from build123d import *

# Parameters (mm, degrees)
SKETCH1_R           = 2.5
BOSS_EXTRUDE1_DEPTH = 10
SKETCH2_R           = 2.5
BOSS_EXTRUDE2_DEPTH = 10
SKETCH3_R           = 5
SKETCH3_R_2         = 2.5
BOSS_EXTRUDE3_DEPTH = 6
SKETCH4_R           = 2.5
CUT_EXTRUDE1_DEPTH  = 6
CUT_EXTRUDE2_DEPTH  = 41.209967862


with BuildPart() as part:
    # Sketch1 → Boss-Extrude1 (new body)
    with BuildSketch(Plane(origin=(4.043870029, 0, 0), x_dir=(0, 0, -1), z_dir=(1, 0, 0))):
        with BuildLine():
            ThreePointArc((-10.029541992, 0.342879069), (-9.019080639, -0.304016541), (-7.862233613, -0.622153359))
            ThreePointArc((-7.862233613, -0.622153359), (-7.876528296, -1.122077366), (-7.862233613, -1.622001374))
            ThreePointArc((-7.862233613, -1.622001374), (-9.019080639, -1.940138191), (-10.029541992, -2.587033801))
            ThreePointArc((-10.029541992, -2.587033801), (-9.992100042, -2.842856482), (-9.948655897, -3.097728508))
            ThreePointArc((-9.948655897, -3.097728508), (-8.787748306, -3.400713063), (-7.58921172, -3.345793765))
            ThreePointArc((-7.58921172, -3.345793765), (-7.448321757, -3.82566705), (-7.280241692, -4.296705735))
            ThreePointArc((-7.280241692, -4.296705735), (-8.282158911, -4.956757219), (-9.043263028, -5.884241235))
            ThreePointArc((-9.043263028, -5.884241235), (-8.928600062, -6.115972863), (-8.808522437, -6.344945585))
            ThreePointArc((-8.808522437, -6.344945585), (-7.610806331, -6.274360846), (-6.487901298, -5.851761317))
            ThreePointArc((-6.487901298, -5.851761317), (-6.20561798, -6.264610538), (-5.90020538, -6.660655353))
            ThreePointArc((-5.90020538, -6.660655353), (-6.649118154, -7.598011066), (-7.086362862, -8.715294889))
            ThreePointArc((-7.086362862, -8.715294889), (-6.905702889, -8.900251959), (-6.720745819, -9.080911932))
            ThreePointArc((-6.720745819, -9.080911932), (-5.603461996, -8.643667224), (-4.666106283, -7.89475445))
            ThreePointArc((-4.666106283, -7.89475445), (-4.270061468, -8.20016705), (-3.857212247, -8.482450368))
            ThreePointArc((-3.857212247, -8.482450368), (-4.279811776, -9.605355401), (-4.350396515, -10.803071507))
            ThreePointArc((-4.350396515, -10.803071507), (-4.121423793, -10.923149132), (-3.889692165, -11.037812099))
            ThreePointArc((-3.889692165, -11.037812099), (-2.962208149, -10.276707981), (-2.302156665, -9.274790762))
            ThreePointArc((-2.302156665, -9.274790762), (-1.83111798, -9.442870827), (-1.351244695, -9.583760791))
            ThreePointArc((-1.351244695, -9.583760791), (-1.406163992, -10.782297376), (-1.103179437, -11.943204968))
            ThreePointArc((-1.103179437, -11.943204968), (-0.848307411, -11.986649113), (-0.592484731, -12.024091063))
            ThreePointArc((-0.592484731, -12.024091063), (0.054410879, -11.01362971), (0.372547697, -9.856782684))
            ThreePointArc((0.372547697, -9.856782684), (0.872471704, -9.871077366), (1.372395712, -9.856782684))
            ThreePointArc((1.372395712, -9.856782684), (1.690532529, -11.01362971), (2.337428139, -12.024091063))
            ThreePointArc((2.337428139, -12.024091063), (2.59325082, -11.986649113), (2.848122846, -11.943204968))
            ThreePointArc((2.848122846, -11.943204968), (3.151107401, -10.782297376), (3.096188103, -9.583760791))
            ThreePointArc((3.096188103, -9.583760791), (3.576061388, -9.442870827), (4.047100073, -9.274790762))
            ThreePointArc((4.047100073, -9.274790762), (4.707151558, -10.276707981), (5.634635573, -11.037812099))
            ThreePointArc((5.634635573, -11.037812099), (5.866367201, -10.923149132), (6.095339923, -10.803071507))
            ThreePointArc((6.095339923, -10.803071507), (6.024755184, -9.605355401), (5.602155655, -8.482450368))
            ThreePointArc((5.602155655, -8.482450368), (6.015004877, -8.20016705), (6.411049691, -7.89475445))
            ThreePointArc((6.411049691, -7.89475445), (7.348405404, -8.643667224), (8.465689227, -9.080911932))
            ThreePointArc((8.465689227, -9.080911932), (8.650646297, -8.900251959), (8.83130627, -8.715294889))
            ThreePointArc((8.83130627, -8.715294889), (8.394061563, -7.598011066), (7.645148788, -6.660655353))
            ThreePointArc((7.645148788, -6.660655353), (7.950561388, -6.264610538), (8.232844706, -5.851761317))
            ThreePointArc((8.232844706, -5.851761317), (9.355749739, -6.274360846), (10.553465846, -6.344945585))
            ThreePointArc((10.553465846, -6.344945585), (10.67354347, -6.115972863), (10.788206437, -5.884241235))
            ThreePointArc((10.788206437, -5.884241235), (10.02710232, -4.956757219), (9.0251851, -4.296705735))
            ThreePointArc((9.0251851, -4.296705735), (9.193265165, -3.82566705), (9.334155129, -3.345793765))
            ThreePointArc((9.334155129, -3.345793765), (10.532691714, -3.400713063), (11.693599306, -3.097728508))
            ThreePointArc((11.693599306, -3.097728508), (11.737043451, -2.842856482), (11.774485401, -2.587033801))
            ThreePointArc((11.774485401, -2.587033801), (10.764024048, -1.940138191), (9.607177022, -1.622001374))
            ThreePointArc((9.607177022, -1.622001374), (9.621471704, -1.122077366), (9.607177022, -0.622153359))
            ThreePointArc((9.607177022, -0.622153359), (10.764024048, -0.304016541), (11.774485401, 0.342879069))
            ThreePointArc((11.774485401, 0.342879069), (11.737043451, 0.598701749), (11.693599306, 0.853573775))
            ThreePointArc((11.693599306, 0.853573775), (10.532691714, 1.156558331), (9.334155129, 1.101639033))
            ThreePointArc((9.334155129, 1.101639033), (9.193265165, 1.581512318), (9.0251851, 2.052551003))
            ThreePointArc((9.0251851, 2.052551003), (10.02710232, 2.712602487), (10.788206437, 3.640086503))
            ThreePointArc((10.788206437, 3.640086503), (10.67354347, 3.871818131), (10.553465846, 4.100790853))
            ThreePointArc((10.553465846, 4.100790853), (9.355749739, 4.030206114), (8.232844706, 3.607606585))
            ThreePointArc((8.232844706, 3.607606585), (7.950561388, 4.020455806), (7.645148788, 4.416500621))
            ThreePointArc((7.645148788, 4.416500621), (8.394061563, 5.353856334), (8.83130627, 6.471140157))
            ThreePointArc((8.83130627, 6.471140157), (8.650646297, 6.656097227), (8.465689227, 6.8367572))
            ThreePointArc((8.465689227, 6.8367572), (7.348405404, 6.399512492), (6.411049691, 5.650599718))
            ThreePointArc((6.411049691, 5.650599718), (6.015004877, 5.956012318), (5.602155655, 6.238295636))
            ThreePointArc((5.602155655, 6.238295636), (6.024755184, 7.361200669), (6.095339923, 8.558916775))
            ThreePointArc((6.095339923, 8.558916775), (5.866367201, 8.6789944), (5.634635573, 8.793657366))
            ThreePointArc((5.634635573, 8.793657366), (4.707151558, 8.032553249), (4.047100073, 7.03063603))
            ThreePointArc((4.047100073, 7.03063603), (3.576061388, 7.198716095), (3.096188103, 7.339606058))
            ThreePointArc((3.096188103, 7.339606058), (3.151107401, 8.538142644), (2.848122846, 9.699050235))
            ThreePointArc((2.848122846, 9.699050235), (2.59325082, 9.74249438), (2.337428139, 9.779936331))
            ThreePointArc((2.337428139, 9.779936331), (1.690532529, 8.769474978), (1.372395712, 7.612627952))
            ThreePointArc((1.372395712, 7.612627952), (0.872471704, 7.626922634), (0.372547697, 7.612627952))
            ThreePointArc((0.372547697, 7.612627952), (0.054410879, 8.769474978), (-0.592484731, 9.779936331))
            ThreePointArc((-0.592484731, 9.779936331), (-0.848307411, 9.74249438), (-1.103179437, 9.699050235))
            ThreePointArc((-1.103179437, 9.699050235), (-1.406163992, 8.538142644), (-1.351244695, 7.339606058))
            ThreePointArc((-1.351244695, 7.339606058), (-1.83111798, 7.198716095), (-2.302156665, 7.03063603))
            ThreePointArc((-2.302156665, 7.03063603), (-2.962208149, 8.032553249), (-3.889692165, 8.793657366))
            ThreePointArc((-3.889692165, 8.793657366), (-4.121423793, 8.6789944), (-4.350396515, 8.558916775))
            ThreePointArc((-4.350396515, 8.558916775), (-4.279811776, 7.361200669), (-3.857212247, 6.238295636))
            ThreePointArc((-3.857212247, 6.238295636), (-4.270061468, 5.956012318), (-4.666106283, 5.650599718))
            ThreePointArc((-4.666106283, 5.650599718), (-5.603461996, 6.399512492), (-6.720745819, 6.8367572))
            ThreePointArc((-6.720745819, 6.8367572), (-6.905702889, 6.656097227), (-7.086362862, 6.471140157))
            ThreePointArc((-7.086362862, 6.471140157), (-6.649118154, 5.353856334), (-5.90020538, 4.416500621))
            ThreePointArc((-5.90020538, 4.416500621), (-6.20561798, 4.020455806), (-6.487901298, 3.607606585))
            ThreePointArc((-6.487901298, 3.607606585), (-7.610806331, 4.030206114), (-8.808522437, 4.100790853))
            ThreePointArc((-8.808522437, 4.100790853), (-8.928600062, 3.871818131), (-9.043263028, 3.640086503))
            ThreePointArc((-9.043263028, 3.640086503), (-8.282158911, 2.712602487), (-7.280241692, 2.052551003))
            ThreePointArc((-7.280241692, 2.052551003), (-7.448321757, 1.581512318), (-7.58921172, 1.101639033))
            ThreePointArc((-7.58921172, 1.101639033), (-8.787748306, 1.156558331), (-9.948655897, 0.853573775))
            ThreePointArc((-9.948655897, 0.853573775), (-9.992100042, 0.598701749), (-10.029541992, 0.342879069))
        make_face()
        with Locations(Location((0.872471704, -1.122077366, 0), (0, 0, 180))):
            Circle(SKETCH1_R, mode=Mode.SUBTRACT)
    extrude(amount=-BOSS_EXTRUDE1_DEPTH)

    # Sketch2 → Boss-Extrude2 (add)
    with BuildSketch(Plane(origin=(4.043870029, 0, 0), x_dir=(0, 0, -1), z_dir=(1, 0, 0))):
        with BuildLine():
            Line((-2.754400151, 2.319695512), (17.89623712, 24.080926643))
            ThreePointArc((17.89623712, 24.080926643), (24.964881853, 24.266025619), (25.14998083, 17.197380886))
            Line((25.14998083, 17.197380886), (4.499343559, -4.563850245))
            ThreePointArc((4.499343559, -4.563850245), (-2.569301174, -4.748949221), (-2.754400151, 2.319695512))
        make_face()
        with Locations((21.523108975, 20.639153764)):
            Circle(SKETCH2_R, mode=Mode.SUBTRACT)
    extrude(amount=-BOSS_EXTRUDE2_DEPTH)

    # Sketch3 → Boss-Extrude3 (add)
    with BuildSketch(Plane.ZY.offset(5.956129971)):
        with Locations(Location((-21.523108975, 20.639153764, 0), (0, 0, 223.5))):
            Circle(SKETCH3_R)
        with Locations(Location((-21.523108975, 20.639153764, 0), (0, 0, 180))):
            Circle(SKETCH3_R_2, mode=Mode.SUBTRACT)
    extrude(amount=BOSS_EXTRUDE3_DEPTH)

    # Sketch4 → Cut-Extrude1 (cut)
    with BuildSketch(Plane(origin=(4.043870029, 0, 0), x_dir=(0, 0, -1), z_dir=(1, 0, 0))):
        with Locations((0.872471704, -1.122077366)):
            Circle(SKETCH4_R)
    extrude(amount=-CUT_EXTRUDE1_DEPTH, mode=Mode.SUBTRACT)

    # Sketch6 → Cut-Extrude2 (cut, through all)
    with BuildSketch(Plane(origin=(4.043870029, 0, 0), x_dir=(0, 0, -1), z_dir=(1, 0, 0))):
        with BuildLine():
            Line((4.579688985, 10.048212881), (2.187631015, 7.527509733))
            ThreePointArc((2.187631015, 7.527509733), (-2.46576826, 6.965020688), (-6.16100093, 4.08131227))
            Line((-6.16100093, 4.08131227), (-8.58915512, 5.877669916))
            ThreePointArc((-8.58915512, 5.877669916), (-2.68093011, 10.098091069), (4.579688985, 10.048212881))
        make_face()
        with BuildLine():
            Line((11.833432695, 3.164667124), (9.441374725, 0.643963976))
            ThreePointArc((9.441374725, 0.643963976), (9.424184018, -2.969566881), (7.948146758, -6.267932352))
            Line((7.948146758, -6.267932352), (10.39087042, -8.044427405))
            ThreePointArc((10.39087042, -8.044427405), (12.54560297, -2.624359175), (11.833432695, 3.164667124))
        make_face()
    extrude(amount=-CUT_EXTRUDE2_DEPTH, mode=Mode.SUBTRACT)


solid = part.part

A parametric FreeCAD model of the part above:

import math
import FreeCAD as App
import Part
import Sketcher

V = App.Vector
Q = App.Units.Quantity

doc = App.newDocument("Part")
body = doc.addObject("PartDesign::Body", "Body")

# Sketch on YZ plane
sketch1 = body.newObject("Sketcher::SketchObject", "Sketch")
sketch1.AttachmentSupport = (doc.getObject("YZ_Plane"), [""])
sketch1.MapMode = "FlatFace"
sketch1.AttachmentOffset = App.Placement(V(0, 0, 4.04387), App.Rotation())
sketch1.addGeometry([
    Part.ArcOfCircle(Part.Circle(V(3.4, 7.4, 0), V(0, 0, 1), 4), math.radians(139), math.radians(173)),  # 0
    Part.ArcOfCircle(Part.Circle(V(-1.1, -0.9, 0), V(0, 0, 1), 8.7), math.radians(86.72), math.radians(93.28)),  # 1
    Part.ArcOfCircle(Part.Circle(V(-5.6, 7.4, 0), V(0, 0, 1), 4), math.radians(7), math.radians(41)),  # 2
    Part.ArcOfCircle(Part.Circle(V(-1.1, -0.9, 0), V(0, 0, 1), 11), math.radians(97.65), math.radians(100.35)),  # 3
    Part.ArcOfCircle(Part.Circle(V(0.6, 8.4, 0), V(0, 0, 1), 4), math.radians(157), math.radians(191)),  # 4
    Part.ArcOfCircle(Part.Circle(V(-1.1, -0.9, 0), V(0, 0, 1), 8.7), math.radians(104.72), math.radians(111.28)),  # 5
    Part.ArcOfCircle(Part.Circle(V(-7.9, 5.6, 0), V(0, 0, 1), 4), math.radians(25), math.radians(59)),  # 6
    Part.ArcOfCircle(Part.Circle(V(-1.1, -0.9, 0), V(0, 0, 1), 11), math.radians(115.65), math.radians(118.35)),  # 7
    Part.ArcOfCircle(Part.Circle(V(-2.4, 8.4, 0), V(0, 0, 1), 4), math.radians(175), math.radians(209)),  # 8
    Part.ArcOfCircle(Part.Circle(V(-1.1, -0.9, 0), V(0, 0, 1), 8.7), math.radians(122.72), math.radians(129.28)),  # 9
    Part.ArcOfCircle(Part.Circle(V(-9.6, 3.2, 0), V(0, 0, 1), 4), math.radians(43), math.radians(77)),  # 10
    Part.ArcOfCircle(Part.Circle(V(-1.1, -0.9, 0), V(0, 0, 1), 11), math.radians(133.65), math.radians(136.35)),  # 11
    Part.ArcOfCircle(Part.Circle(V(-5.2, 7.6, 0), V(0, 0, 1), 4), math.radians(-167), math.radians(-133)),  # 12
    Part.ArcOfCircle(Part.Circle(V(-1.1, -0.9, 0), V(0, 0, 1), 8.7), math.radians(140.72), math.radians(147.28)),  # 13
    Part.ArcOfCircle(Part.Circle(V(-10.4, 0.4, 0), V(0, 0, 1), 4), math.radians(61), math.radians(95)),  # 14
    Part.ArcOfCircle(Part.Circle(V(-1.1, -0.9, 0), V(0, 0, 1), 11), math.radians(151.65), math.radians(154.35)),  # 15
    Part.ArcOfCircle(Part.Circle(V(-7.6, 5.9, 0), V(0, 0, 1), 4), math.radians(-149), math.radians(-115)),  # 16
    Part.ArcOfCircle(Part.Circle(V(-1.1, -0.9, 0), V(0, 0, 1), 8.7), math.radians(158.72), math.radians(165.28)),  # 17
    Part.ArcOfCircle(Part.Circle(V(-10.4, -2.6, 0), V(0, 0, 1), 4), math.radians(79), math.radians(113)),  # 18
    Part.ArcOfCircle(Part.Circle(V(-1.1, -0.9, 0), V(0, 0, 1), 11), math.radians(169.65), math.radians(172.35)),  # 19
    Part.ArcOfCircle(Part.Circle(V(-9.4, 3.6, 0), V(0, 0, 1), 4), math.radians(-131), math.radians(-97)),  # 20
    Part.ArcOfCircle(Part.Circle(V(-1.1, -0.9, 0), V(0, 0, 1), 8.7), math.radians(176.72), math.radians(183.28)),  # 21
    Part.ArcOfCircle(Part.Circle(V(-9.4, -5.3, 0), V(0, 0, 1), 4), math.radians(97), math.radians(131)),  # 22
    Part.ArcOfCircle(Part.Circle(V(-1.1, -0.9, 0), V(0, 0, 1), 11), math.radians(-172.35), math.radians(-169.65)),  # 23
    Part.ArcOfCircle(Part.Circle(V(-10.4, 0.8, 0), V(0, 0, 1), 4), math.radians(-113), math.radians(-79)),  # 24
    Part.ArcOfCircle(Part.Circle(V(-1.1, -0.9, 0), V(0, 0, 1), 8.7), math.radians(-165.28), math.radians(-158.72)),  # 25
    Part.ArcOfCircle(Part.Circle(V(-7.6, -7.7, 0), V(0, 0, 1), 4), math.radians(115), math.radians(149)),  # 26
    Part.ArcOfCircle(Part.Circle(V(-1.1, -0.9, 0), V(0, 0, 1), 11), math.radians(-154.35), math.radians(-151.65)),  # 27
    Part.ArcOfCircle(Part.Circle(V(-10.4, -2.1, 0), V(0, 0, 1), 4), math.radians(-95), math.radians(-61)),  # 28
    Part.ArcOfCircle(Part.Circle(V(-1.1, -0.9, 0), V(0, 0, 1), 8.7), math.radians(-147.28), math.radians(-140.72)),  # 29
    Part.ArcOfCircle(Part.Circle(V(-5.2, -9.3, 0), V(0, 0, 1), 4), math.radians(133), math.radians(167)),  # 30
    Part.ArcOfCircle(Part.Circle(V(-1.1, -0.9, 0), V(0, 0, 1), 11), math.radians(-136.35), math.radians(-133.65)),  # 31
    Part.ArcOfCircle(Part.Circle(V(-9.6, -4.9, 0), V(0, 0, 1), 4), math.radians(-77), math.radians(-43)),  # 32
    Part.ArcOfCircle(Part.Circle(V(-1.1, -0.9, 0), V(0, 0, 1), 8.7), math.radians(-129.28), math.radians(-122.72)),  # 33
    Part.ArcOfCircle(Part.Circle(V(-2.4, -10.2, 0), V(0, 0, 1), 4), math.radians(151), math.radians(185)),  # 34
    Part.ArcOfCircle(Part.Circle(V(-1.1, -0.9, 0), V(0, 0, 1), 11), math.radians(-118.35), math.radians(-115.65)),  # 35
    Part.ArcOfCircle(Part.Circle(V(-7.9, -7.4, 0), V(0, 0, 1), 4), math.radians(-59), math.radians(-25)),  # 36
    Part.ArcOfCircle(Part.Circle(V(-1.1, -0.9, 0), V(0, 0, 1), 8.7), math.radians(-111.28), math.radians(-104.72)),  # 37
    Part.ArcOfCircle(Part.Circle(V(0.6, -10.1, 0), V(0, 0, 1), 4), math.radians(169), math.radians(203)),  # 38
    Part.ArcOfCircle(Part.Circle(V(-1.1, -0.9, 0), V(0, 0, 1), 11), math.radians(-100.35), math.radians(-97.65)),  # 39
    Part.ArcOfCircle(Part.Circle(V(-5.6, -9.1, 0), V(0, 0, 1), 4), math.radians(-41), math.radians(-7)),  # 40
    Part.ArcOfCircle(Part.Circle(V(-1.1, -0.9, 0), V(0, 0, 1), 8.7), math.radians(-93.28), math.radians(-86.72)),  # 41
    Part.ArcOfCircle(Part.Circle(V(3.4, -9.1, 0), V(0, 0, 1), 4), math.radians(-173), math.radians(-139)),  # 42
    Part.ArcOfCircle(Part.Circle(V(-1.1, -0.9, 0), V(0, 0, 1), 11), math.radians(-82.35), math.radians(-79.65)),  # 43
    Part.ArcOfCircle(Part.Circle(V(-2.8, -10.1, 0), V(0, 0, 1), 4), math.radians(-23), math.radians(11)),  # 44
    Part.ArcOfCircle(Part.Circle(V(-1.1, -0.9, 0), V(0, 0, 1), 8.7), math.radians(-75.28), math.radians(-68.72)),  # 45
    Part.ArcOfCircle(Part.Circle(V(5.7, -7.4, 0), V(0, 0, 1), 4), math.radians(-155), math.radians(-121)),  # 46
    Part.ArcOfCircle(Part.Circle(V(-1.1, -0.9, 0), V(0, 0, 1), 11), math.radians(-64.35), math.radians(-61.65)),  # 47
    Part.ArcOfCircle(Part.Circle(V(0.1, -10.2, 0), V(0, 0, 1), 4), math.radians(-5), math.radians(29)),  # 48
    Part.ArcOfCircle(Part.Circle(V(-1.1, -0.9, 0), V(0, 0, 1), 8.7), math.radians(-57.28), math.radians(-50.72)),  # 49
    Part.ArcOfCircle(Part.Circle(V(7.4, -4.9, 0), V(0, 0, 1), 4), math.radians(-137), math.radians(-103)),  # 50
    Part.ArcOfCircle(Part.Circle(V(-1.1, -0.9, 0), V(0, 0, 1), 11), math.radians(-46.35), math.radians(-43.65)),  # 51
    Part.ArcOfCircle(Part.Circle(V(2.9, -9.3, 0), V(0, 0, 1), 4), math.radians(13), math.radians(47)),  # 52
    Part.ArcOfCircle(Part.Circle(V(-1.1, -0.9, 0), V(0, 0, 1), 8.7), math.radians(-39.28), math.radians(-32.72)),  # 53
    Part.ArcOfCircle(Part.Circle(V(8.2, -2.1, 0), V(0, 0, 1), 4), math.radians(-119), math.radians(-85)),  # 54
    Part.ArcOfCircle(Part.Circle(V(-1.1, -0.9, 0), V(0, 0, 1), 11), math.radians(-28.35), math.radians(-25.65)),  # 55
    Part.ArcOfCircle(Part.Circle(V(5.4, -7.7, 0), V(0, 0, 1), 4), math.radians(31), math.radians(65)),  # 56
    Part.ArcOfCircle(Part.Circle(V(-1.1, -0.9, 0), V(0, 0, 1), 8.7), math.radians(-21.28), math.radians(-14.72)),  # 57
    Part.ArcOfCircle(Part.Circle(V(8.1, 0.8, 0), V(0, 0, 1), 4), math.radians(-101), math.radians(-67)),  # 58
    Part.ArcOfCircle(Part.Circle(V(-1.1, -0.9, 0), V(0, 0, 1), 11), math.radians(-10.35), math.radians(-7.65)),  # 59
    Part.ArcOfCircle(Part.Circle(V(7.1, -5.3, 0), V(0, 0, 1), 4), math.radians(49), math.radians(83)),  # 60
    Part.ArcOfCircle(Part.Circle(V(-1.1, -0.9, 0), V(0, 0, 1), 8.7), math.radians(-3.28), math.radians(3.28)),  # 61
    Part.ArcOfCircle(Part.Circle(V(7.1, 3.6, 0), V(0, 0, 1), 4), math.radians(-83), math.radians(-49)),  # 62
    Part.ArcOfCircle(Part.Circle(V(-1.1, -0.9, 0), V(0, 0, 1), 11), math.radians(7.65), math.radians(10.35)),  # 63
    Part.ArcOfCircle(Part.Circle(V(8.1, -2.6, 0), V(0, 0, 1), 4), math.radians(67), math.radians(101)),  # 64
    Part.ArcOfCircle(Part.Circle(V(-1.1, -0.9, 0), V(0, 0, 1), 8.7), math.radians(14.72), math.radians(21.28)),  # 65
    Part.ArcOfCircle(Part.Circle(V(5.4, 5.9, 0), V(0, 0, 1), 4), math.radians(-65), math.radians(-31)),  # 66
    Part.ArcOfCircle(Part.Circle(V(-1.1, -0.9, 0), V(0, 0, 1), 11), math.radians(25.65), math.radians(28.35)),  # 67
    Part.ArcOfCircle(Part.Circle(V(8.2, 0.4, 0), V(0, 0, 1), 4), math.radians(85), math.radians(119)),  # 68
    Part.ArcOfCircle(Part.Circle(V(-1.1, -0.9, 0), V(0, 0, 1), 8.7), math.radians(32.72), math.radians(39.28)),  # 69
    Part.ArcOfCircle(Part.Circle(V(2.9, 7.6, 0), V(0, 0, 1), 4), math.radians(-47), math.radians(-13)),  # 70
    Part.ArcOfCircle(Part.Circle(V(-1.1, -0.9, 0), V(0, 0, 1), 11), math.radians(43.65), math.radians(46.35)),  # 71
    Part.ArcOfCircle(Part.Circle(V(7.4, 3.2, 0), V(0, 0, 1), 4), math.radians(103), math.radians(137)),  # 72
    Part.ArcOfCircle(Part.Circle(V(-1.1, -0.9, 0), V(0, 0, 1), 8.7), math.radians(50.72), math.radians(57.28)),  # 73
    Part.ArcOfCircle(Part.Circle(V(0.1, 8.4, 0), V(0, 0, 1), 4), math.radians(-29), math.radians(5)),  # 74
    Part.ArcOfCircle(Part.Circle(V(-1.1, -0.9, 0), V(0, 0, 1), 11), math.radians(61.65), math.radians(64.35)),  # 75
    Part.ArcOfCircle(Part.Circle(V(5.7, 5.6, 0), V(0, 0, 1), 4), math.radians(121), math.radians(155)),  # 76
    Part.ArcOfCircle(Part.Circle(V(-1.1, -0.9, 0), V(0, 0, 1), 8.7), math.radians(68.72), math.radians(75.28)),  # 77
    Part.ArcOfCircle(Part.Circle(V(-2.8, 8.4, 0), V(0, 0, 1), 4), math.radians(-11), math.radians(23)),  # 78
    Part.ArcOfCircle(Part.Circle(V(-1.1, -0.9, 0), V(0, 0, 1), 11), math.radians(79.65), math.radians(82.35)),  # 79
    Part.Circle(V(-1.1, -0.9, 0), V(0, 0, 1), 2.5),  # 80
], False)
sketch1.addConstraint([
    Sketcher.Constraint("Coincident", 0, 2, 1, 1),
    Sketcher.Constraint("Coincident", 1, 2, 2, 1),
    Sketcher.Constraint("Coincident", 2, 2, 3, 1),
    Sketcher.Constraint("Coincident", 3, 2, 4, 1),
    Sketcher.Constraint("Coincident", 4, 2, 5, 1),
    Sketcher.Constraint("Coincident", 5, 2, 6, 1),
    Sketcher.Constraint("Coincident", 6, 2, 7, 1),
    Sketcher.Constraint("Coincident", 7, 2, 8, 1),
    Sketcher.Constraint("Coincident", 8, 2, 9, 1),
    Sketcher.Constraint("Coincident", 9, 2, 10, 1),
    Sketcher.Constraint("Coincident", 10, 2, 11, 1),
    Sketcher.Constraint("Coincident", 11, 2, 12, 1),
    Sketcher.Constraint("Coincident", 12, 2, 13, 1),
    Sketcher.Constraint("Coincident", 13, 2, 14, 1),
    Sketcher.Constraint("Coincident", 14, 2, 15, 1),
    Sketcher.Constraint("Coincident", 15, 2, 16, 1),
    Sketcher.Constraint("Coincident", 16, 2, 17, 1),
    Sketcher.Constraint("Coincident", 17, 2, 18, 1),
    Sketcher.Constraint("Coincident", 18, 2, 19, 1),
    Sketcher.Constraint("Coincident", 19, 2, 20, 1),
    Sketcher.Constraint("Coincident", 20, 2, 21, 1),
    Sketcher.Constraint("Coincident", 21, 2, 22, 1),
    Sketcher.Constraint("Coincident", 22, 2, 23, 1),
    Sketcher.Constraint("Coincident", 23, 2, 24, 1),
    Sketcher.Constraint("Coincident", 24, 2, 25, 1),
    Sketcher.Constraint("Coincident", 25, 2, 26, 1),
    Sketcher.Constraint("Coincident", 26, 2, 27, 1),
    Sketcher.Constraint("Coincident", 27, 2, 28, 1),
    Sketcher.Constraint("Coincident", 28, 2, 29, 1),
    Sketcher.Constraint("Coincident", 29, 2, 30, 1),
    Sketcher.Constraint("Coincident", 30, 2, 31, 1),
    Sketcher.Constraint("Coincident", 31, 2, 32, 1),
    Sketcher.Constraint("Coincident", 32, 2, 33, 1),
    Sketcher.Constraint("Coincident", 33, 2, 34, 1),
    Sketcher.Constraint("Coincident", 34, 2, 35, 1),
    Sketcher.Constraint("Coincident", 35, 2, 36, 1),
    Sketcher.Constraint("Coincident", 36, 2, 37, 1),
    Sketcher.Constraint("Coincident", 37, 2, 38, 1),
    Sketcher.Constraint("Coincident", 38, 2, 39, 1),
    Sketcher.Constraint("Coincident", 39, 2, 40, 1),
    Sketcher.Constraint("Coincident", 40, 2, 41, 1),
    Sketcher.Constraint("Coincident", 41, 2, 42, 1),
    Sketcher.Constraint("Coincident", 42, 2, 43, 1),
    Sketcher.Constraint("Coincident", 43, 2, 44, 1),
    Sketcher.Constraint("Coincident", 44, 2, 45, 1),
    Sketcher.Constraint("Coincident", 45, 2, 46, 1),
    Sketcher.Constraint("Coincident", 46, 2, 47, 1),
    Sketcher.Constraint("Coincident", 47, 2, 48, 1),
    Sketcher.Constraint("Coincident", 48, 2, 49, 1),
    Sketcher.Constraint("Coincident", 49, 2, 50, 1),
    Sketcher.Constraint("Coincident", 50, 2, 51, 1),
    Sketcher.Constraint("Coincident", 51, 2, 52, 1),
    Sketcher.Constraint("Coincident", 52, 2, 53, 1),
    Sketcher.Constraint("Coincident", 53, 2, 54, 1),
    Sketcher.Constraint("Coincident", 54, 2, 55, 1),
    Sketcher.Constraint("Coincident", 55, 2, 56, 1),
    Sketcher.Constraint("Coincident", 56, 2, 57, 1),
    Sketcher.Constraint("Coincident", 57, 2, 58, 1),
    Sketcher.Constraint("Coincident", 58, 2, 59, 1),
    Sketcher.Constraint("Coincident", 59, 2, 60, 1),
    Sketcher.Constraint("Coincident", 60, 2, 61, 1),
    Sketcher.Constraint("Coincident", 61, 2, 62, 1),
    Sketcher.Constraint("Coincident", 62, 2, 63, 1),
    Sketcher.Constraint("Coincident", 63, 2, 64, 1),
    Sketcher.Constraint("Coincident", 64, 2, 65, 1),
    Sketcher.Constraint("Coincident", 65, 2, 66, 1),
    Sketcher.Constraint("Coincident", 66, 2, 67, 1),
    Sketcher.Constraint("Coincident", 67, 2, 68, 1),
    Sketcher.Constraint("Coincident", 68, 2, 69, 1),
    Sketcher.Constraint("Coincident", 69, 2, 70, 1),
    Sketcher.Constraint("Coincident", 70, 2, 71, 1),
    Sketcher.Constraint("Coincident", 71, 2, 72, 1),
    Sketcher.Constraint("Coincident", 72, 2, 73, 1),
    Sketcher.Constraint("Coincident", 73, 2, 74, 1),
    Sketcher.Constraint("Coincident", 74, 2, 75, 1),
    Sketcher.Constraint("Coincident", 75, 2, 76, 1),
    Sketcher.Constraint("Coincident", 76, 2, 77, 1),
    Sketcher.Constraint("Coincident", 77, 2, 78, 1),
    Sketcher.Constraint("Coincident", 78, 2, 79, 1),
    Sketcher.Constraint("Coincident", 79, 2, 0, 1),
    Sketcher.Constraint("Coincident", 3, 3, 1, 3),
    Sketcher.Constraint("Coincident", 5, 3, 1, 3),
    Sketcher.Constraint("Coincident", 7, 3, 1, 3),
    Sketcher.Constraint("Coincident", 9, 3, 1, 3),
    Sketcher.Constraint("Coincident", 11, 3, 1, 3),
    Sketcher.Constraint("Coincident", 13, 3, 1, 3),
    Sketcher.Constraint("Coincident", 15, 3, 1, 3),
    Sketcher.Constraint("Coincident", 17, 3, 1, 3),
    Sketcher.Constraint("Coincident", 19, 3, 1, 3),
    Sketcher.Constraint("Coincident", 21, 3, 1, 3),
    Sketcher.Constraint("Coincident", 23, 3, 1, 3),
    Sketcher.Constraint("Coincident", 25, 3, 1, 3),
    Sketcher.Constraint("Coincident", 27, 3, 1, 3),
    Sketcher.Constraint("Coincident", 29, 3, 1, 3),
    Sketcher.Constraint("Coincident", 31, 3, 1, 3),
    Sketcher.Constraint("Coincident", 33, 3, 1, 3),
    Sketcher.Constraint("Coincident", 35, 3, 1, 3),
    Sketcher.Constraint("Coincident", 37, 3, 1, 3),
    Sketcher.Constraint("Coincident", 39, 3, 1, 3),
    Sketcher.Constraint("Coincident", 41, 3, 1, 3),
    Sketcher.Constraint("Coincident", 43, 3, 1, 3),
    Sketcher.Constraint("Coincident", 45, 3, 1, 3),
    Sketcher.Constraint("Coincident", 47, 3, 1, 3),
    Sketcher.Constraint("Coincident", 49, 3, 1, 3),
    Sketcher.Constraint("Coincident", 51, 3, 1, 3),
    Sketcher.Constraint("Coincident", 53, 3, 1, 3),
    Sketcher.Constraint("Coincident", 55, 3, 1, 3),
    Sketcher.Constraint("Coincident", 57, 3, 1, 3),
    Sketcher.Constraint("Coincident", 59, 3, 1, 3),
    Sketcher.Constraint("Coincident", 61, 3, 1, 3),
    Sketcher.Constraint("Coincident", 63, 3, 1, 3),
    Sketcher.Constraint("Coincident", 65, 3, 1, 3),
    Sketcher.Constraint("Coincident", 67, 3, 1, 3),
    Sketcher.Constraint("Coincident", 69, 3, 1, 3),
    Sketcher.Constraint("Coincident", 71, 3, 1, 3),
    Sketcher.Constraint("Coincident", 73, 3, 1, 3),
    Sketcher.Constraint("Coincident", 75, 3, 1, 3),
    Sketcher.Constraint("Coincident", 77, 3, 1, 3),
    Sketcher.Constraint("Coincident", 79, 3, 1, 3),
    Sketcher.Constraint("Coincident", 80, 3, 1, 3),
    Sketcher.Constraint("Equal", 0, 2),
    Sketcher.Constraint("Equal", 2, 4),
    Sketcher.Constraint("Equal", 1, 5),
    Sketcher.Constraint("Equal", 4, 6),
    Sketcher.Constraint("Equal", 3, 7),
    Sketcher.Constraint("Equal", 6, 8),
    Sketcher.Constraint("Equal", 5, 9),
    Sketcher.Constraint("Equal", 8, 10),
    Sketcher.Constraint("Equal", 7, 11),
    Sketcher.Constraint("Equal", 10, 12),
    Sketcher.Constraint("Equal", 9, 13),
    Sketcher.Constraint("Equal", 12, 14),
    Sketcher.Constraint("Equal", 11, 15),
    Sketcher.Constraint("Equal", 14, 16),
    Sketcher.Constraint("Equal", 13, 17),
    Sketcher.Constraint("Equal", 16, 18),
    Sketcher.Constraint("Equal", 15, 19),
    Sketcher.Constraint("Equal", 18, 20),
    Sketcher.Constraint("Equal", 17, 21),
    Sketcher.Constraint("Equal", 20, 22),
    Sketcher.Constraint("Equal", 19, 23),
    Sketcher.Constraint("Equal", 22, 24),
    Sketcher.Constraint("Equal", 21, 25),
    Sketcher.Constraint("Equal", 24, 26),
    Sketcher.Constraint("Equal", 23, 27),
    Sketcher.Constraint("Equal", 26, 28),
    Sketcher.Constraint("Equal", 25, 29),
    Sketcher.Constraint("Equal", 28, 30),
    Sketcher.Constraint("Equal", 27, 31),
    Sketcher.Constraint("Equal", 30, 32),
    Sketcher.Constraint("Equal", 29, 33),
    Sketcher.Constraint("Equal", 32, 34),
    Sketcher.Constraint("Equal", 31, 35),
    Sketcher.Constraint("Equal", 34, 36),
    Sketcher.Constraint("Equal", 33, 37),
    Sketcher.Constraint("Equal", 36, 38),
    Sketcher.Constraint("Equal", 31, 39),
    Sketcher.Constraint("Equal", 38, 40),
    Sketcher.Constraint("Equal", 37, 41),
    Sketcher.Constraint("Equal", 40, 42),
    Sketcher.Constraint("Equal", 39, 43),
    Sketcher.Constraint("Equal", 42, 44),
    Sketcher.Constraint("Equal", 41, 45),
    Sketcher.Constraint("Equal", 44, 46),
    Sketcher.Constraint("Equal", 35, 47),
    Sketcher.Constraint("Equal", 46, 48),
    Sketcher.Constraint("Equal", 45, 49),
    Sketcher.Constraint("Equal", 48, 50),
    Sketcher.Constraint("Equal", 47, 51),
    Sketcher.Constraint("Equal", 50, 52),
    Sketcher.Constraint("Equal", 49, 53),
    Sketcher.Constraint("Equal", 52, 54),
    Sketcher.Constraint("Equal", 51, 55),
    Sketcher.Constraint("Equal", 54, 56),
    Sketcher.Constraint("Equal", 53, 57),
    Sketcher.Constraint("Equal", 56, 58),
    Sketcher.Constraint("Equal", 51, 59),
    Sketcher.Constraint("Equal", 58, 60),
    Sketcher.Constraint("Equal", 57, 61),
    Sketcher.Constraint("Equal", 60, 62),
    Sketcher.Constraint("Equal", 59, 63),
    Sketcher.Constraint("Equal", 62, 64),
    Sketcher.Constraint("Equal", 61, 65),
    Sketcher.Constraint("Equal", 64, 66),
    Sketcher.Constraint("Equal", 55, 67),
    Sketcher.Constraint("Equal", 66, 68),
    Sketcher.Constraint("Equal", 65, 69),
    Sketcher.Constraint("Equal", 68, 70),
    Sketcher.Constraint("Equal", 67, 71),
    Sketcher.Constraint("Equal", 70, 72),
    Sketcher.Constraint("Equal", 69, 73),
    Sketcher.Constraint("Equal", 72, 74),
    Sketcher.Constraint("Equal", 71, 75),
    Sketcher.Constraint("Equal", 74, 76),
    Sketcher.Constraint("Equal", 73, 77),
    Sketcher.Constraint("Equal", 76, 78),
    Sketcher.Constraint("Equal", 75, 79),
    Sketcher.Constraint("Horizontal", 0, 3, 2, 3),
    Sketcher.Constraint("Horizontal", 40, 3, 42, 3),
    Sketcher.Constraint("Horizontal", 38, 3, 44, 3),
    Sketcher.Constraint("Horizontal", 36, 3, 46, 3),
    Sketcher.Constraint("Horizontal", 34, 3, 48, 3),
    Sketcher.Constraint("Horizontal", 32, 3, 50, 3),
    Sketcher.Constraint("Horizontal", 30, 3, 52, 3),
    Sketcher.Constraint("Horizontal", 28, 3, 54, 3),
    Sketcher.Constraint("Horizontal", 26, 3, 56, 3),
    Sketcher.Constraint("Horizontal", 24, 3, 58, 3),
    Sketcher.Constraint("Horizontal", 22, 3, 60, 3),
    Sketcher.Constraint("Horizontal", 20, 3, 62, 3),
    Sketcher.Constraint("Horizontal", 18, 3, 64, 3),
    Sketcher.Constraint("Horizontal", 16, 3, 66, 3),
    Sketcher.Constraint("Horizontal", 14, 3, 68, 3),
    Sketcher.Constraint("Horizontal", 12, 3, 70, 3),
    Sketcher.Constraint("Horizontal", 10, 3, 72, 3),
    Sketcher.Constraint("Horizontal", 8, 3, 74, 3),
    Sketcher.Constraint("Horizontal", 6, 3, 76, 3),
    Sketcher.Constraint("Horizontal", 4, 3, 78, 3),
    Sketcher.Constraint("Horizontal", 0, 2, 1, 2),
    Sketcher.Constraint("Horizontal", 40, 2, 41, 2),
    Sketcher.Constraint("Horizontal", 38, 2, 43, 2),
    Sketcher.Constraint("Horizontal", 36, 2, 45, 2),
    Sketcher.Constraint("Horizontal", 34, 2, 47, 2),
    Sketcher.Constraint("Horizontal", 32, 2, 49, 2),
    Sketcher.Constraint("Horizontal", 30, 2, 51, 2),
    Sketcher.Constraint("Horizontal", 28, 2, 53, 2),
    Sketcher.Constraint("Horizontal", 26, 2, 55, 2),
    Sketcher.Constraint("Horizontal", 24, 2, 57, 2),
    Sketcher.Constraint("Horizontal", 22, 2, 59, 2),
    Sketcher.Constraint("Horizontal", 20, 2, 61, 2),
    Sketcher.Constraint("Horizontal", 18, 2, 63, 2),
    Sketcher.Constraint("Horizontal", 16, 2, 65, 2),
    Sketcher.Constraint("Horizontal", 14, 2, 67, 2),
    Sketcher.Constraint("Horizontal", 12, 2, 69, 2),
    Sketcher.Constraint("Horizontal", 10, 2, 71, 2),
    Sketcher.Constraint("Horizontal", 8, 2, 73, 2),
    Sketcher.Constraint("Horizontal", 6, 2, 75, 2),
    Sketcher.Constraint("Horizontal", 4, 2, 77, 2),
    Sketcher.Constraint("Vertical", 20, 3, 22, 3),
    Sketcher.Constraint("Vertical", 18, 3, 24, 3),
    Sketcher.Constraint("Vertical", 16, 3, 26, 3),
    Sketcher.Constraint("Vertical", 14, 3, 28, 3),
    Sketcher.Constraint("Vertical", 12, 3, 30, 3),
    Sketcher.Constraint("Vertical", 10, 3, 32, 3),
    Sketcher.Constraint("Vertical", 8, 3, 34, 3),
    Sketcher.Constraint("Vertical", 6, 3, 36, 3),
    Sketcher.Constraint("Vertical", 4, 3, 38, 3),
    Sketcher.Constraint("Vertical", 2, 3, 40, 3),
    Sketcher.Constraint("Vertical", 20, 2, 21, 2),
    Sketcher.Constraint("Vertical", 18, 2, 23, 2),
    Sketcher.Constraint("Vertical", 16, 2, 25, 2),
    Sketcher.Constraint("Vertical", 14, 2, 27, 2),
    Sketcher.Constraint("Vertical", 12, 2, 29, 2),
    Sketcher.Constraint("Vertical", 10, 2, 31, 2),
    Sketcher.Constraint("Vertical", 8, 2, 33, 2),
    Sketcher.Constraint("Vertical", 6, 2, 35, 2),
    Sketcher.Constraint("Vertical", 4, 2, 37, 2),
    Sketcher.Constraint("Vertical", 2, 2, 39, 2),
    Sketcher.Constraint("Diameter", 80, 5.0),
    Sketcher.Constraint("Radius", 0, 4.0),
    Sketcher.Constraint("Radius", 3, 11.0),
    Sketcher.Constraint("Radius", 1, 8.749),
    Sketcher.Constraint("DistanceX", 1, 2, -1, 1, 1.622001),
    Sketcher.Constraint("DistanceX", 10, 3, -1, 1, 9.597898),
    Sketcher.Constraint("DistanceX", 12, 3, -1, 1, 5.1795),
    Sketcher.Constraint("DistanceY", -1, 1, 16, 3, 5.9347),
    Sketcher.Constraint("DistanceX", -1, 1, 58, 3, 8.119899),
    Sketcher.Constraint("DistanceY", -1, 1, 8, 2, 6.487901),
    Sketcher.Constraint("DistanceY", 25, 2, -1, 1, 4.0471),
    Sketcher.Constraint("DistanceY", 38, 2, -1, 1, 11.693599),
    Sketcher.Constraint("DistanceX", -1, 1, 49, 2, 4.416501),
    Sketcher.Constraint("DistanceX", -1, 1, 52, 2, 5.6506),
    Sketcher.Constraint("DistanceY", 1, 3, -1, 1, 0.872471),
    Sketcher.Constraint("DistanceX", -1, 1, 4, 3, 0.577361),
    Sketcher.Constraint("DistanceX", 6, 3, -1, 1, 7.929249),
    Sketcher.Constraint("DistanceY", -1, 1, 6, 3, 5.60554),
    Sketcher.Constraint("DistanceY", -1, 1, 10, 3, 3.184951),
    Sketcher.Constraint("DistanceY", 18, 3, -1, 1, 2.57191),
    Sketcher.Constraint("DistanceY", 22, 3, -1, 1, 5.344661),
    Sketcher.Constraint("DistanceY", 34, 3, -1, 1, 10.187269),
    Sketcher.Constraint("DistanceY", 40, 3, -1, 1, 9.136958),
    Sketcher.Constraint("DistanceX", -1, 1, 54, 3, 8.19272),
    Sketcher.Constraint("DistanceX", -1, 1, 60, 3, 7.142409),
    Sketcher.Constraint("DistanceX", 13, 2, -1, 1, 8.48245),
])
pad1 = body.newObject("PartDesign::Pad", "Pad")
pad1.Profile = sketch1
pad1.Length = 10
pad1.Reversed = True

# Sketch on YZ plane
sketch2 = body.newObject("Sketcher::SketchObject", "Sketch001")
sketch2.AttachmentSupport = (doc.getObject("YZ_Plane"), [""])
sketch2.MapMode = "FlatFace"
sketch2.AttachmentOffset = App.Placement(V(0, 0, 4.04387), App.Rotation())
sketch2.addGeometry([
    Part.LineSegment(V(24.1, -17.9, 0), V(2.3, 2.8, 0)),  # 0
    Part.ArcOfCircle(Part.Circle(V(-1.1, -0.9, 0), V(0, 0, 1), 5), math.radians(47), math.radians(226)),  # 1
    Part.LineSegment(V(-4.6, -4.5, 0), V(17.2, -25.1, 0)),  # 2
    Part.ArcOfCircle(Part.Circle(V(20.6, -21.5, 0), V(0, 0, 1), 5), math.radians(-133), math.radians(46)),  # 3
    Part.Circle(V(20.6, -21.5, 0), V(0, 0, 1), 2.5),  # 4
], False)
sketch2.addConstraint([
    Sketcher.Constraint("Tangent", 0, 2, 1, 1),
    Sketcher.Constraint("Tangent", 1, 2, 2, 1),
    Sketcher.Constraint("Tangent", 2, 2, 3, 1),
    Sketcher.Constraint("Tangent", 3, 2, 0, 1),
    Sketcher.Constraint("Coincident", 4, 3, 3, 3),
    Sketcher.Constraint("Equal", 1, 3),
    Sketcher.Constraint("Diameter", 4, 5.0),
    Sketcher.Constraint("Radius", 1, 5.0),
    Sketcher.Constraint("Distance", 0, 30.0),
    Sketcher.Constraint("Angle", 0, Q("136.5 deg")),
    Sketcher.Constraint("DistanceY", -1, 1, 0, 2, 2.7544),
    Sketcher.Constraint("DistanceX", 1, 2, -1, 1, 4.56385),
])
pad2 = body.newObject("PartDesign::Pad", "Pad001")
pad2.Profile = sketch2
pad2.Length = 10
pad2.Reversed = True

# Sketch on YZ plane
sketch3 = body.newObject("Sketcher::SketchObject", "Sketch002")
sketch3.AttachmentSupport = (doc.getObject("YZ_Plane"), [""])
sketch3.MapMode = "FlatFace"
sketch3.AttachmentOffset = App.Placement(V(0, 0, -5.95613), App.Rotation())
sketch3.addGeometry([
    Part.Circle(V(20.6, -21.5, 0), V(0, 0, 1), 5),
    Part.Circle(V(20.6, -21.5, 0), V(0, 0, 1), 2.5),
], False)
sketch3.addConstraint([
    Sketcher.Constraint("Coincident", 1, 3, 0, 3),
    Sketcher.Constraint("Diameter", 0, 10.0),
    Sketcher.Constraint("Diameter", 1, 5.0),
    Sketcher.Constraint("DistanceY", 0, 3, -1, 1, 21.523109),
    Sketcher.Constraint("DistanceX", -1, 1, 0, 3, 20.639154),
])
pad3 = body.newObject("PartDesign::Pad", "Pad002")
pad3.Profile = sketch3
pad3.Length = 6
pad3.Reversed = True

# Sketch on YZ plane
sketch4 = body.newObject("Sketcher::SketchObject", "Sketch003")
sketch4.AttachmentSupport = (doc.getObject("YZ_Plane"), [""])
sketch4.MapMode = "FlatFace"
sketch4.AttachmentOffset = App.Placement(V(0, 0, 4.04387), App.Rotation())
sketch4.addGeometry(Part.Circle(V(-1.1, -0.9, 0), V(0, 0, 1), 2.5), False)
sketch4.addConstraint([
    Sketcher.Constraint("Diameter", 0, 5.0),
    Sketcher.Constraint("DistanceY", 0, 3, -1, 1, 0.872472),
    Sketcher.Constraint("DistanceX", 0, 3, -1, 1, 1.122077),
])
pocket1 = body.newObject("PartDesign::Pocket", "Pocket")
pocket1.Profile = sketch4
pocket1.Length = 6

# Sketch on YZ plane
sketch5 = body.newObject("Sketcher::SketchObject", "Sketch004")
sketch5.AttachmentSupport = (doc.getObject("YZ_Plane"), [""])
sketch5.MapMode = "FlatFace"
sketch5.AttachmentOffset = App.Placement(V(0, 0, 4.04387), App.Rotation())
sketch5.addGeometry([
    Part.LineSegment(V(7.5, -2.2, 0), V(10, -4.6, 0)),  # 0
    Part.ArcOfCircle(Part.Circle(V(-1.1, -0.9, 0), V(0, 0, 1), 11.8), math.radians(-18), math.radians(54)),  # 1
    Part.LineSegment(V(5.9, 8.6, 0), V(4.1, 6.2, 0)),  # 2
    Part.ArcOfCircle(Part.Circle(V(-1.1, -0.9, 0), V(0, 0, 1), 8.7), math.radians(-9), math.radians(54)),  # 3
    Part.LineSegment(V(3.2, -11.8, 0), V(0.6, -9.4, 0)),  # 4
    Part.ArcOfCircle(Part.Circle(V(-1.1, -0.9, 0), V(0, 0, 1), 8.7), math.radians(-126), math.radians(-78)),  # 5
    Part.LineSegment(V(-6.3, -7.9, 0), V(-8, -10.4, 0)),  # 6
    Part.ArcOfCircle(Part.Circle(V(-1.1, -0.9, 0), V(0, 0, 1), 11.8), math.radians(-126), math.radians(-69)),  # 7
], False)
sketch5.addConstraint([
    Sketcher.Constraint("Coincident", 0, 2, 1, 1),
    Sketcher.Constraint("Coincident", 1, 2, 2, 1),
    Sketcher.Constraint("Coincident", 2, 2, 3, 2),
    Sketcher.Constraint("Coincident", 3, 1, 0, 1),
    Sketcher.Constraint("Coincident", 4, 2, 5, 2),
    Sketcher.Constraint("Coincident", 5, 1, 6, 1),
    Sketcher.Constraint("Coincident", 6, 2, 7, 1),
    Sketcher.Constraint("Coincident", 7, 2, 4, 1),
    Sketcher.Constraint("Coincident", 3, 3, 1, 3),
    Sketcher.Constraint("Coincident", 5, 3, 1, 3),
    Sketcher.Constraint("Coincident", 7, 3, 1, 3),
    Sketcher.Constraint("Equal", 3, 5),
    Sketcher.Constraint("Equal", 1, 7),
    Sketcher.Constraint("Parallel", 0, 4),
    Sketcher.Constraint("Equal", 0, 4),
    Sketcher.Constraint("Angle", 0, Q("-43.5 deg")),
    Sketcher.Constraint("Radius", 3, 8.749),
    Sketcher.Constraint("DistanceY", -1, 1, 2, 2, 6.161001),
    Sketcher.Constraint("Radius", 1, 11.769403),
    Sketcher.Constraint("DistanceY", 6, 2, 7, 3, 9.518399),
    Sketcher.Constraint("DistanceX", 5, 1, 7, 2, 9.432599),
    Sketcher.Constraint("DistanceY", 7, 2, 3, 1, 9.645802),
    Sketcher.Constraint("DistanceY", 1, 3, -1, 1, 0.872472),
    Sketcher.Constraint("DistanceX", -1, 1, 1, 2, 5.87767),
    Sketcher.Constraint("DistanceX", -1, 1, 3, 1, 7.52751),
])
pocket2 = body.newObject("PartDesign::Pocket", "Pocket001")
pocket2.Profile = sketch5
pocket2.Type = "ThroughAll"

doc.recompute()
